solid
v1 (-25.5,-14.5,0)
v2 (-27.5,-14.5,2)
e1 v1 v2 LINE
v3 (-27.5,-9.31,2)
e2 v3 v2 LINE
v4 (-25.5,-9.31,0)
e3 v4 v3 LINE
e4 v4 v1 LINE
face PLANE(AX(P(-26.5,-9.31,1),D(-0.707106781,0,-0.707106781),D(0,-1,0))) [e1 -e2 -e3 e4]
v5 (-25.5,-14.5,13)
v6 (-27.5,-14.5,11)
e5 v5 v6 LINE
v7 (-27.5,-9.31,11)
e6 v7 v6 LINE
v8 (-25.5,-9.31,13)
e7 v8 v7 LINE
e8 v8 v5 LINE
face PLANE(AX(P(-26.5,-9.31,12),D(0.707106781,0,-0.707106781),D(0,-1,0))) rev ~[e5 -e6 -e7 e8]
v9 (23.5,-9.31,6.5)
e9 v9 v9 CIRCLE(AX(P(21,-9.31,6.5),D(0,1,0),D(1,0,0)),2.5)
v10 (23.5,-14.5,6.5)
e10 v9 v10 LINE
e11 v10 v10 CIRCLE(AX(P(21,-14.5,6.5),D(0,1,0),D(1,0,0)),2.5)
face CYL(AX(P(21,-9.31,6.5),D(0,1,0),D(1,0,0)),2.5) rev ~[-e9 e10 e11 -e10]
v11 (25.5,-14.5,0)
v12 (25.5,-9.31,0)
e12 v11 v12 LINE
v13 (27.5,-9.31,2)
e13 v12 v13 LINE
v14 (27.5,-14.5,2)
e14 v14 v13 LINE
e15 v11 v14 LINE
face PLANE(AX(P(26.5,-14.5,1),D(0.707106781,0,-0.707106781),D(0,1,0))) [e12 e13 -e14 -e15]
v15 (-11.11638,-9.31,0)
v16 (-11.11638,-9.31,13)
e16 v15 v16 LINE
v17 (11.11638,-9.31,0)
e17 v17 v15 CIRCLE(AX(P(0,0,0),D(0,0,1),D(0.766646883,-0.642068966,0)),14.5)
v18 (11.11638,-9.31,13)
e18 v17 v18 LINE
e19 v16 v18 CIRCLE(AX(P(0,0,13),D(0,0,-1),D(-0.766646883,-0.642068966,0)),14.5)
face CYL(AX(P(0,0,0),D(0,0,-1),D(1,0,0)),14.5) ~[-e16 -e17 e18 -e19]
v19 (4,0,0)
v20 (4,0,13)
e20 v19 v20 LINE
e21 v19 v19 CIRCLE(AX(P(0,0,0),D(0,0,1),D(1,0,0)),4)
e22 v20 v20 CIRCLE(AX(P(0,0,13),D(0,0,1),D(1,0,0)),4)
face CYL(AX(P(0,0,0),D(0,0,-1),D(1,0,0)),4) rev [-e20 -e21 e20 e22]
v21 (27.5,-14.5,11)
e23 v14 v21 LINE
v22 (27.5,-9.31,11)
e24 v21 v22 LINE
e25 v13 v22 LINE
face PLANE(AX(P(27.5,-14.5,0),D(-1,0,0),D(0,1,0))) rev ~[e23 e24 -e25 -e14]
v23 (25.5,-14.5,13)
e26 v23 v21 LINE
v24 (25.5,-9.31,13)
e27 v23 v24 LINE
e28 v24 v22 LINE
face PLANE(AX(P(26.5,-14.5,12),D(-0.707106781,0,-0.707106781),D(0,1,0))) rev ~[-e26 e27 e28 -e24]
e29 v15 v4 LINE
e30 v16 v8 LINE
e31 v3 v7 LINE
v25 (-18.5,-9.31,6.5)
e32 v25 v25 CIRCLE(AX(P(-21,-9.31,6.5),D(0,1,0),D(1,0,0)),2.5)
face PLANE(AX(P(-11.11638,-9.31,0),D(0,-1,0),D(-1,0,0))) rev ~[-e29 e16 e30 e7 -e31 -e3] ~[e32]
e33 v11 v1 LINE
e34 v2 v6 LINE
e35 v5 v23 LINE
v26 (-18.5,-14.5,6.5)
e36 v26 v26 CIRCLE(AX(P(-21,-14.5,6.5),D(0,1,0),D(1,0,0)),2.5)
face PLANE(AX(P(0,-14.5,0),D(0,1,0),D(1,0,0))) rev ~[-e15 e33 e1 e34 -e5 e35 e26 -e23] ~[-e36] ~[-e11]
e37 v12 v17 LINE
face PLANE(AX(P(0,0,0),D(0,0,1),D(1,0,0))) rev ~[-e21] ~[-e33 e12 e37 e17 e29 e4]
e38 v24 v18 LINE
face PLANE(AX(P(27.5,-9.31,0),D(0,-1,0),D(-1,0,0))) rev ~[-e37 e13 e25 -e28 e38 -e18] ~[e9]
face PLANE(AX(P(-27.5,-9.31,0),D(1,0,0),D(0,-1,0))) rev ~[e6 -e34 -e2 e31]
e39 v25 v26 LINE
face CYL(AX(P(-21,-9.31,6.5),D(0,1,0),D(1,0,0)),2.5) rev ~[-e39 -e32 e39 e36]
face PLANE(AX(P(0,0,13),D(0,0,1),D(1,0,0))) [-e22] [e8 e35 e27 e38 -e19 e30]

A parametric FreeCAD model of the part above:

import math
import FreeCAD as App
import Part
import Sketcher
from FreeCAD import Vector
Q = App.Units.Quantity


def edges_at(feature, points):
    """Names of the edges that pass closest to the given points."""
    edges = feature.Shape.Edges
    near = lambda p: min(range(len(edges)), key=lambda i: edges[i].distToShape(Part.Vertex(*p))[0])
    return sorted({f"Edge{near(p) + 1}" for p in points})

doc = App.newDocument("Part")
body = doc.addObject("PartDesign::Body", "Body")

# Sketch on XY plane
sketch1 = doc.addObject("Sketcher::SketchObject", "Sketch")
body.addObject(sketch1)
sketch1.AttachmentSupport = (doc.XY_Plane, [""])
sketch1.MapMode = "FlatFace"
sketch1.addGeometry([
    Part.ArcOfCircle(Part.Circle(Vector(0, 0, 0), Vector(0, 0, 1), 14.5), math.radians(-40), math.radians(220)),  # 0
    Part.LineSegment(Vector(-11.1, -9.3, 0), Vector(-27.5, -9.3, 0)),  # 1
    Part.LineSegment(Vector(-27.5, -9.3, 0), Vector(-27.5, -14.5, 0)),  # 2
    Part.LineSegment(Vector(-27.5, -14.5, 0), Vector(27.5, -14.5, 0)),  # 3
    Part.LineSegment(Vector(27.5, -14.5, 0), Vector(27.5, -9.3, 0)),  # 4
    Part.LineSegment(Vector(27.5, -9.3, 0), Vector(11.1, -9.3, 0)),  # 5
    Part.Circle(Vector(0, 0, 0), Vector(0, 0, 1), 4),  # 6
], False)
sketch1.addConstraint([
    Sketcher.Constraint("Coincident", 0, 2, 1, 1),
    Sketcher.Constraint("Coincident", 1, 2, 2, 1),
    Sketcher.Constraint("Coincident", 2, 2, 3, 1),
    Sketcher.Constraint("Coincident", 3, 2, 4, 1),
    Sketcher.Constraint("Coincident", 4, 2, 5, 1),
    Sketcher.Constraint("Coincident", 5, 2, 0, 1),
    Sketcher.Constraint("Horizontal", 1),
    Sketcher.Constraint("Vertical", 2),
    Sketcher.Constraint("Horizontal", 3),
    Sketcher.Constraint("Vertical", 4),
    Sketcher.Constraint("Horizontal", 5),
    Sketcher.Constraint("Coincident", 0, 3, -1, 1),
    Sketcher.Constraint("Coincident", 6, 3, -1, 1),
    Sketcher.Constraint("Symmetric", 1, 2, 4, 2, -2),
    Sketcher.Constraint("Diameter", 6, Q("8 mm")),
    Sketcher.Constraint("Radius", 0, Q("14.5 mm")),
    Sketcher.Constraint("DistanceY", 2, 2, 2, 1, Q("5.19 mm")),
    Sketcher.Constraint("DistanceX", 1, 2, -1, 1, Q("27.5 mm")),
    Sketcher.Constraint("DistanceY", 2, 2, -1, 1, Q("14.5 mm")),
])
pad1 = doc.addObject("PartDesign::Pad", "Pad")
body.addObject(pad1)
pad1.Profile = sketch1
pad1.Length = 13

# Sketch on XZ plane
sketch2 = doc.addObject("Sketcher::SketchObject", "Sketch001")
body.addObject(sketch2)
sketch2.AttachmentSupport = (doc.XZ_Plane, [""])
sketch2.MapMode = "FlatFace"
sketch2.AttachmentOffset = App.Placement(Vector(0, 0, 9.31), App.Rotation())
sketch2.addGeometry([
    Part.Circle(Vector(-21, 6.5, 0), Vector(0, 0, 1), 2.5),
    Part.Circle(Vector(21, 6.5, 0), Vector(0, 0, 1), 2.5),
], False)
sketch2.addConstraint([
    Sketcher.Constraint("Equal", 0, 1),
    Sketcher.Constraint("Symmetric", 0, 3, 1, 3, -2),
    Sketcher.Constraint("Diameter", 0, Q("5 mm")),
    Sketcher.Constraint("DistanceX", 0, 3, -1, 1, Q("21 mm")),
    Sketcher.Constraint("DistanceY", -1, 1, 0, 3, Q("6.5 mm")),
])
pocket1 = doc.addObject("PartDesign::Pocket", "Pocket")
body.addObject(pocket1)
pocket1.Profile = sketch2
pocket1.Type = "ThroughAll"
pocket1.Reversed = True
doc.recompute()

chamfer = doc.addObject("PartDesign::Chamfer", "Chamfer")
body.addObject(chamfer)
chamfer.Base = (pocket1, edges_at(pocket1, [
    (-27.5, -11.905, 0),
    (27.5, -11.905, 0),
    (27.5, -11.905, 13),
    (-27.5, -11.905, 13),
]))
chamfer.Size = 2

doc.recompute()
